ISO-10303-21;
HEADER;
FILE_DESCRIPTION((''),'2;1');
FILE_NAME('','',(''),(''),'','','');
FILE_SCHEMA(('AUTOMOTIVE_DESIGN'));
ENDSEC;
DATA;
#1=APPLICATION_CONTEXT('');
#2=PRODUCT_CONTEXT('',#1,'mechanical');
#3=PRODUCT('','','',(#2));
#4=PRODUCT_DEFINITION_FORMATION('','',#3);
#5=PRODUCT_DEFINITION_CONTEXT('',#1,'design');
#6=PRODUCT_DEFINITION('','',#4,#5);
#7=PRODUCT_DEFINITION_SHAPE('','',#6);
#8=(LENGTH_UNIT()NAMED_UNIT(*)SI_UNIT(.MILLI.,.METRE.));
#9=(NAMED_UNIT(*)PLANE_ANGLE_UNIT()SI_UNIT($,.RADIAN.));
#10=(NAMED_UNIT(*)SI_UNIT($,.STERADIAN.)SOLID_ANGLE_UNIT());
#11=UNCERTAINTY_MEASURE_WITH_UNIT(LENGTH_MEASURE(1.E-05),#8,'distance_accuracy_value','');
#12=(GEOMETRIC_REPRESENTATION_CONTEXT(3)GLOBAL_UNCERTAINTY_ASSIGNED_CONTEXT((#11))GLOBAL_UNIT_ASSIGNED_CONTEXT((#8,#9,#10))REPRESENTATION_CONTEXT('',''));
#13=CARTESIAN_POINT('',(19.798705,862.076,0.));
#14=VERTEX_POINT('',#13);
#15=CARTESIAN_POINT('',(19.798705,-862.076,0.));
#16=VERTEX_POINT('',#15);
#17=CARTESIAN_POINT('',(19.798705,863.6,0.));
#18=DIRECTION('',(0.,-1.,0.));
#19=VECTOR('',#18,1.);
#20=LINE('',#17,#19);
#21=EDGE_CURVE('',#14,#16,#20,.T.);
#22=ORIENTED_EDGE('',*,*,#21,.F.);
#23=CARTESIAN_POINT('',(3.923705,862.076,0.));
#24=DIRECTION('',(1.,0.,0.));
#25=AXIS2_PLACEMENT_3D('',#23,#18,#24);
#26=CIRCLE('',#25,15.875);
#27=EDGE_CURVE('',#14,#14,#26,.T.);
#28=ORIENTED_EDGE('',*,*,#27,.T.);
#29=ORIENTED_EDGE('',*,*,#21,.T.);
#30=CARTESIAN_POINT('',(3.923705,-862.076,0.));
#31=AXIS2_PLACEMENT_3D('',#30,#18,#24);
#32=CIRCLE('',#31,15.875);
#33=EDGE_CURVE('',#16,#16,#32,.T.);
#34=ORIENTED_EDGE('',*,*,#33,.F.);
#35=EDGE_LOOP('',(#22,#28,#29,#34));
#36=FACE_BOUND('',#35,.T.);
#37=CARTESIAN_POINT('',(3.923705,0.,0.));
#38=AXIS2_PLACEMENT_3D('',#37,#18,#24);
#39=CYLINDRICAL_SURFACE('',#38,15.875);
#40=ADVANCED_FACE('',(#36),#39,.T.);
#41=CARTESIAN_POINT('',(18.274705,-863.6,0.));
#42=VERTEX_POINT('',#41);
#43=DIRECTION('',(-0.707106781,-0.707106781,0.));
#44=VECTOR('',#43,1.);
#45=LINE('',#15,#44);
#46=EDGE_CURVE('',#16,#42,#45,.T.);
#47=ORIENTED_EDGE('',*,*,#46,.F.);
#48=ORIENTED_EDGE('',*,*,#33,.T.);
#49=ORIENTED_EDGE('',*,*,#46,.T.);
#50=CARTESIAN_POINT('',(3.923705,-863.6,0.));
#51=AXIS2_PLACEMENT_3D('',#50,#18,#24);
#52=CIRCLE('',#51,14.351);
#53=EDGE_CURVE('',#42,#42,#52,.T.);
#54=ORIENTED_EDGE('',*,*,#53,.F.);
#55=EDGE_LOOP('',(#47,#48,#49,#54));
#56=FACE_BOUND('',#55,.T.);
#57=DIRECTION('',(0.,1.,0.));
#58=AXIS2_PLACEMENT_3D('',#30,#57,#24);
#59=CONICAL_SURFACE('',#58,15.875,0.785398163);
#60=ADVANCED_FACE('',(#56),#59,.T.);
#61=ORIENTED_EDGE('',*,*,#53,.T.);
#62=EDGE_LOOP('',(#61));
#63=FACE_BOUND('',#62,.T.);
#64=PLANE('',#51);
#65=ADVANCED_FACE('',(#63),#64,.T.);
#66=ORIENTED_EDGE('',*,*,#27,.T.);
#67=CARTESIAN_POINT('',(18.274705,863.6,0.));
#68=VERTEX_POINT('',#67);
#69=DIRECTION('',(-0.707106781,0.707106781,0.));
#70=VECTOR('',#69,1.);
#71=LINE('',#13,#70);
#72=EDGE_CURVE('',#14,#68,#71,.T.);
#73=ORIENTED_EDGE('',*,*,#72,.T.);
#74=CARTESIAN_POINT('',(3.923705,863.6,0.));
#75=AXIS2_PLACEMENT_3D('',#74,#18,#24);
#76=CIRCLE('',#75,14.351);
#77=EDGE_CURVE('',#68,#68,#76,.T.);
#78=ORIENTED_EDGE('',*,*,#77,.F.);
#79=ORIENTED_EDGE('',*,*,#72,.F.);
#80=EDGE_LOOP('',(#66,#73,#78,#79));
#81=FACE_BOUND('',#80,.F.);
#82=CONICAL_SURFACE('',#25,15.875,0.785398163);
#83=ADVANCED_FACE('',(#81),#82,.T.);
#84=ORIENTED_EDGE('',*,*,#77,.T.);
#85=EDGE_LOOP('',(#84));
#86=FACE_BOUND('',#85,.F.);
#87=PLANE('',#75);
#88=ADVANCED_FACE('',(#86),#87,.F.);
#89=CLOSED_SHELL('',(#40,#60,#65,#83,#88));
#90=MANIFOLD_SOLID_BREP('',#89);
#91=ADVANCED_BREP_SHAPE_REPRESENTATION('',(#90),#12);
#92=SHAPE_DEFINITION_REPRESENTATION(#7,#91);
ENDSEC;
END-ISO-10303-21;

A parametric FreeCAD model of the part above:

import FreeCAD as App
import Part
import Sketcher

V = App.Vector
Q = App.Units.Quantity


def edges_at(feature, points):
    """Names of the edges that pass closest to the given points."""
    edges = feature.Shape.Edges
    near = lambda p: min(range(len(edges)), key=lambda i: edges[i].distToShape(Part.Vertex(*p))[0])
    return sorted({f"Edge{near(p) + 1}" for p in points})

doc = App.newDocument("Part")
params = doc.addObject("Spreadsheet::Sheet", "Params")
for row, (alias, value) in enumerate([
    ("sketch1_diameter", "1.25 in"),
    ("pad1_length", "68 in"),
    ("chamfer_size", "0.06 in"),
], start=1):
    params.set(f"A{row}", alias)
    params.set(f"B{row}", "=" + value)
    params.setAlias(f"B{row}", alias)

body = doc.addObject("PartDesign::Body", "Body")

# Sketch on XZ plane
sketch1 = body.newObject("Sketcher::SketchObject", "Sketch")
sketch1.AttachmentSupport = (doc.getObject("XZ_Plane"), [""])
sketch1.MapMode = "FlatFace"
sketch1.addGeometry(Part.Circle(V(4, 0, 0), V(0, 0, 1), 16), False)
sketch1.addConstraint([
    Sketcher.Constraint("PointOnObject", 0, 3, -1),
    Sketcher.Constraint("Diameter", 0, Q("1.25 in")),
    Sketcher.Constraint("DistanceX", -1, 1, 0, 3, 3.923705),
])
sketch1.setExpression("Constraints[1]", "Params.sketch1_diameter")
pad1 = body.newObject("PartDesign::Pad", "Pad")
pad1.Profile = sketch1
pad1.setExpression("Length", "Params.pad1_length")
pad1.Midplane = True
doc.recompute()

chamfer = body.newObject("PartDesign::Chamfer", "Chamfer")
chamfer.Base = (pad1, edges_at(pad1, [(-11.951, -863.6, 0), (-11.951, 863.6, 0)]))
chamfer.setExpression("Size", "Params.chamfer_size")

doc.recompute()
